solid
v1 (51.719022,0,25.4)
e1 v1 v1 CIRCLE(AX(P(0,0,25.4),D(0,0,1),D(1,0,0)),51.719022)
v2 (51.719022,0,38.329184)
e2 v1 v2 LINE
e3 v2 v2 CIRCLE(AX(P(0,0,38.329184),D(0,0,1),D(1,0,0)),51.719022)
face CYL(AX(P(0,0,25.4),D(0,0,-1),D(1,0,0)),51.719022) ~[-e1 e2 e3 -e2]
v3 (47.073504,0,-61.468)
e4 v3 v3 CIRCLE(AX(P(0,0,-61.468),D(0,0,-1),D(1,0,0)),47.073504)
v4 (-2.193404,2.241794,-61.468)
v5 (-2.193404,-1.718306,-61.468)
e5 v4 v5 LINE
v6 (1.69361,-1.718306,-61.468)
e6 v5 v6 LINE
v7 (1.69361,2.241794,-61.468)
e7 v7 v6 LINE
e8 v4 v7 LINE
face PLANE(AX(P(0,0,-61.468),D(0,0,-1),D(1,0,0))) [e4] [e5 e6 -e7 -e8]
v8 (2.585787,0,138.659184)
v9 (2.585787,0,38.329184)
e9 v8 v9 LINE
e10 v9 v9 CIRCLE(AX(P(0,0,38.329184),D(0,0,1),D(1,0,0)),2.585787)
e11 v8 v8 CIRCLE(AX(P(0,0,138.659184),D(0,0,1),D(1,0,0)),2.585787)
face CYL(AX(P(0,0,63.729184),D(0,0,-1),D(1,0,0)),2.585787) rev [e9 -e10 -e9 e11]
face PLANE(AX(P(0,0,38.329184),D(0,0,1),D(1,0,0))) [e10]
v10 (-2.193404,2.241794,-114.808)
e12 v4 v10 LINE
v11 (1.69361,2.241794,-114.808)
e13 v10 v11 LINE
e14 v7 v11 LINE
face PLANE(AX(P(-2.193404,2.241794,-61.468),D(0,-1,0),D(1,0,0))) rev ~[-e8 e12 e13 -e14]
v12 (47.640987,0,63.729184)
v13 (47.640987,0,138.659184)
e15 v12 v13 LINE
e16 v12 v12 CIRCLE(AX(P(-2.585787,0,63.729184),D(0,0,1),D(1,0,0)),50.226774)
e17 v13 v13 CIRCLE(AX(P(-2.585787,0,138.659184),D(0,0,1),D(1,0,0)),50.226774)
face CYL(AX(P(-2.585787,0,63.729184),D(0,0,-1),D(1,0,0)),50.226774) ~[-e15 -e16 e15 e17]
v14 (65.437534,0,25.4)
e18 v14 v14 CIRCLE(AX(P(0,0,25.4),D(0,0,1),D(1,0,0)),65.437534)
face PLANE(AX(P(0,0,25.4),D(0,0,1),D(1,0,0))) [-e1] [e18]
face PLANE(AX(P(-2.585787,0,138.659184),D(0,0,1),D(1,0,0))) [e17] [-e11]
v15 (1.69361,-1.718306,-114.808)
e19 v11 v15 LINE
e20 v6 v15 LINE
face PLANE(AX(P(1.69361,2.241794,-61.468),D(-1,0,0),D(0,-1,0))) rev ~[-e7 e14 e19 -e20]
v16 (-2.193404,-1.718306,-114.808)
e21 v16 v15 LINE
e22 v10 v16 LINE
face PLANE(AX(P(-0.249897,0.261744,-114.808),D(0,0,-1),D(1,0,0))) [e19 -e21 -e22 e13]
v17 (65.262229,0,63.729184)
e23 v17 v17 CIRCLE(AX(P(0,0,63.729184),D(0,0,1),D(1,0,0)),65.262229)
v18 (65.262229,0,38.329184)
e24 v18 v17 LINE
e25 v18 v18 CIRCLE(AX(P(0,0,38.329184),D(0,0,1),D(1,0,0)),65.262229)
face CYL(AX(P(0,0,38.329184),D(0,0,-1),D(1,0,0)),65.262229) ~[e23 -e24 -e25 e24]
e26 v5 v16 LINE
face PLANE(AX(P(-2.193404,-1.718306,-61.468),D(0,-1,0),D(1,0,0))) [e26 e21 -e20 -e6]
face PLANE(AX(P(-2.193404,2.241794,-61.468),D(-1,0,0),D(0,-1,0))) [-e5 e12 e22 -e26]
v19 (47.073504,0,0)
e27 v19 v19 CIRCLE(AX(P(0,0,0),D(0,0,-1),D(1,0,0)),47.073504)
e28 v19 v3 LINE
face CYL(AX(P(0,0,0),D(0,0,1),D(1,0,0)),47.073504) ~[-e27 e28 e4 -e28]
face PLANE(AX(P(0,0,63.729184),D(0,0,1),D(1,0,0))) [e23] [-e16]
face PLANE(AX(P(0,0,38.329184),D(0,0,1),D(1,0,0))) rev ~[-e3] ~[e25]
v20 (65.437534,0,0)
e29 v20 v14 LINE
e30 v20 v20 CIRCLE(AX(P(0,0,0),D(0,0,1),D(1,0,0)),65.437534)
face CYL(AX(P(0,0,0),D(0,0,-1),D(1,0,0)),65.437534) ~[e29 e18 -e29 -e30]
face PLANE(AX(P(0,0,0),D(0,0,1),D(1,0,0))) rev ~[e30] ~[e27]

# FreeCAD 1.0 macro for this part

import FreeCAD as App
import Part
import Sketcher
Q = App.Units.Quantity


def add_polygon(sketch, points):
    """Adds a closed chain of lines whose ends are joined by coincident constraints."""
    first, n = sketch.GeometryCount, len(points)
    for a, b in zip(points, points[1:] + points[:1]):
        sketch.addGeometry(Part.LineSegment(App.Vector(*a, 0), App.Vector(*b, 0)), False)
    for i in range(n):
        sketch.addConstraint(Sketcher.Constraint("Coincident", first + i, 2, first + (i + 1) % n, 1))

doc = App.newDocument("Part")
body = doc.addObject("PartDesign::Body", "Body")

# Sketch on XY plane
sketch1 = body.newObject("Sketcher::SketchObject", "Sketch")
sketch1.AttachmentSupport = (doc.getObject("XY_Plane"), [""])
sketch1.MapMode = "FlatFace"
sketch1.addGeometry(Part.Circle(App.Vector(0, 0, 0), App.Vector(0, 0, 1), 65), False)
sketch1.addConstraint([
    Sketcher.Constraint("Coincident", 0, 3, -1, 1),
    Sketcher.Constraint("Diameter", 0, 130.875068),
])
pad1 = body.newObject("PartDesign::Pad", "Pad")
pad1.Profile = sketch1
pad1.Length = Q("1 in")

# Sketch on XY plane
sketch2 = body.newObject("Sketcher::SketchObject", "Sketch001")
sketch2.AttachmentSupport = (doc.getObject("XY_Plane"), [""])
sketch2.MapMode = "FlatFace"
sketch2.AttachmentOffset = App.Placement(App.Vector(0, 0, 1 * 25.4), App.Rotation())
sketch2.addGeometry(Part.Circle(App.Vector(0, 0, 0), App.Vector(0, 0, 1), 52), False)
sketch2.addConstraint([
    Sketcher.Constraint("Coincident", 0, 3, -1, 1),
    Sketcher.Constraint("Diameter", 0, 103.438044),
])
pad2 = body.newObject("PartDesign::Pad", "Pad001")
pad2.Profile = sketch2
pad2.Length = 12.929184

# Sketch on XY plane
sketch3 = body.newObject("Sketcher::SketchObject", "Sketch002")
sketch3.AttachmentSupport = (doc.getObject("XY_Plane"), [""])
sketch3.MapMode = "FlatFace"
sketch3.AttachmentOffset = App.Placement(App.Vector(0, 0, 38.329184), App.Rotation())
sketch3.addGeometry([
    Part.Circle(App.Vector(0, 0, 0), App.Vector(0, 0, 1), 65.3),
    Part.Circle(App.Vector(0, 0, 0), App.Vector(0, 0, 1), 2.6),
], False)
sketch3.addConstraint([
    Sketcher.Constraint("Coincident", 0, 3, -1, 1),
    Sketcher.Constraint("Coincident", 1, 3, -1, 1),
    Sketcher.Constraint("Diameter", 0, 130.524458),
    Sketcher.Constraint("Diameter", 1, 5.171574),
])
pad3 = body.newObject("PartDesign::Pad", "Pad002")
pad3.Profile = sketch3
pad3.Length = Q("1 in")

# Sketch on XY plane
sketch4 = body.newObject("Sketcher::SketchObject", "Sketch003")
sketch4.AttachmentSupport = (doc.getObject("XY_Plane"), [""])
sketch4.MapMode = "FlatFace"
sketch4.addGeometry(Part.Circle(App.Vector(0, 0, 0), App.Vector(0, 0, 1), 47), False)
sketch4.addConstraint([
    Sketcher.Constraint("Coincident", 0, 3, -1, 1),
    Sketcher.Constraint("Diameter", 0, 94.147008),
])
pad4 = body.newObject("PartDesign::Pad", "Pad003")
pad4.Profile = sketch4
pad4.Length = Q("2.42 in")
pad4.Reversed = True

# Sketch on XY plane
sketch5 = body.newObject("Sketcher::SketchObject", "Sketch004")
sketch5.AttachmentSupport = (doc.getObject("XY_Plane"), [""])
sketch5.MapMode = "FlatFace"
sketch5.AttachmentOffset = App.Placement(App.Vector(0, 0, 63.729184), App.Rotation())
sketch5.addGeometry([
    Part.Circle(App.Vector(-2.6, 0, 0), App.Vector(0, 0, 1), 50.2),
    Part.Circle(App.Vector(0, 0, 0), App.Vector(0, 0, 1), 2.6),
], False)
sketch5.addConstraint([
    Sketcher.Constraint("Coincident", 1, 3, -1, 1),
    Sketcher.Constraint("PointOnObject", 0, 3, -1),
    Sketcher.Constraint("Diameter", 0, 100.453548),
    Sketcher.Constraint("Diameter", 1, 5.171574),
    Sketcher.Constraint("DistanceX", 0, 3, -1, 1, 2.585787),
])
pad5 = body.newObject("PartDesign::Pad", "Pad004")
pad5.Profile = sketch5
pad5.Length = Q("2.95 in")

# Sketch on XY plane
sketch6 = body.newObject("Sketcher::SketchObject", "Sketch005")
sketch6.AttachmentSupport = (doc.getObject("XY_Plane"), [""])
sketch6.MapMode = "FlatFace"
sketch6.AttachmentOffset = App.Placement(App.Vector(0, 0, -2.42 * 25.4), App.Rotation())
sketch6.addGeometry(Part.Circle(App.Vector(0, 0, 0), App.Vector(0, 0, 1), 47), False)
sketch6.addConstraint([
    Sketcher.Constraint("Coincident", 0, 3, -1, 1),
    Sketcher.Constraint("Diameter", 0, 94.147008),
])
pad6 = body.newObject("PartDesign::Pad", "Pad005")
pad6.Profile = sketch6
pad6.Length = Q("0.06 in")

# Sketch on XY plane
sketch7 = body.newObject("Sketcher::SketchObject", "Sketch006")
sketch7.AttachmentSupport = (doc.getObject("XY_Plane"), [""])
sketch7.MapMode = "FlatFace"
sketch7.AttachmentOffset = App.Placement(App.Vector(0, 0, -2.42 * 25.4), App.Rotation())
add_polygon(sketch7, [(-2.2, -1.7), (-2.2, 2.2), (1.7, 2.2), (1.7, -1.7)])  # lines 0-3
sketch7.addConstraint([
    Sketcher.Constraint("Vertical", 0),
    Sketcher.Constraint("Horizontal", 1),
    Sketcher.Constraint("Vertical", 2),
    Sketcher.Constraint("Horizontal", 3),
    Sketcher.Constraint("DistanceY", 0, 1, 0, 2, 3.9601),
    Sketcher.Constraint("DistanceX", 1, 1, 1, 2, 3.887014),
    Sketcher.Constraint("DistanceX", -1, 1, 1, 2, 1.69361),
    Sketcher.Constraint("DistanceY", -1, 1, 0, 2, 2.241794),
])
pad7 = body.newObject("PartDesign::Pad", "Pad006")
pad7.Profile = sketch7
pad7.Length = Q("2.1 in")
pad7.Reversed = True

doc.recompute()
